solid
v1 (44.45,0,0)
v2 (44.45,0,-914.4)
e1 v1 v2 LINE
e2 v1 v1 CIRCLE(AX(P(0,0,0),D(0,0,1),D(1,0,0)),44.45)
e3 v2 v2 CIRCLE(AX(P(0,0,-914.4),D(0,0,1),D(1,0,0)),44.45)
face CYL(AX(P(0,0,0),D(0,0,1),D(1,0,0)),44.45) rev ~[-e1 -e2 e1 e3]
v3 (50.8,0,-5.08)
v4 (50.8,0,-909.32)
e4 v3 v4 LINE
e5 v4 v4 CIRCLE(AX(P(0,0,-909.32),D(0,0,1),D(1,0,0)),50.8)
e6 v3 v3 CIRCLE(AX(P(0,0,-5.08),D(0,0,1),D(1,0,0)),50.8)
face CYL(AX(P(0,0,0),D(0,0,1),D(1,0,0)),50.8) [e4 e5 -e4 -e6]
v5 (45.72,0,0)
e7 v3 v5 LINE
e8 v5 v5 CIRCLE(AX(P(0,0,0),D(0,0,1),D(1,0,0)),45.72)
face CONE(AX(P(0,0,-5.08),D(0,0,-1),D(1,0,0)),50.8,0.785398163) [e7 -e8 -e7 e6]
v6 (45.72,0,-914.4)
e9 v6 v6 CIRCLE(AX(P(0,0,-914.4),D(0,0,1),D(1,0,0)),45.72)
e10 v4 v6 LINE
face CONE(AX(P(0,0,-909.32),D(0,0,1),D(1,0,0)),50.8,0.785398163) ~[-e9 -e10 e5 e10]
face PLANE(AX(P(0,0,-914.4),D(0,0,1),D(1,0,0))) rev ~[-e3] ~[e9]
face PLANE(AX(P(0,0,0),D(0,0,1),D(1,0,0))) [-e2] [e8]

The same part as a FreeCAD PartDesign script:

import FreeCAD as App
import Part
import Sketcher
Q = App.Units.Quantity


def edges_at(feature, points):
    """Names of the edges that pass closest to the given points."""
    edges = feature.Shape.Edges
    near = lambda p: min(range(len(edges)), key=lambda i: edges[i].distToShape(Part.Vertex(*p))[0])
    return sorted({f"Edge{near(p) + 1}" for p in points})

doc = App.newDocument("Part")
params = doc.addObject("Spreadsheet::Sheet", "Params")
for row, (alias, value) in enumerate([
    ("sketch1_diameter", "4 in"),
    ("sketch1_diameter2", "3.5 in"),
    ("pad1_length", "36 in"),
    ("chamfer_size", "0.2 in"),
    ("chamfer2_size", "0.2 in"),
], start=1):
    params.set(f"A{row}", alias)
    params.set(f"B{row}", "=" + value)
    params.setAlias(f"B{row}", alias)

body = doc.addObject("PartDesign::Body", "Body")

sketch1 = body.newObject("Sketcher::SketchObject", "Sketch")
sketch1.AttachmentSupport = (doc.getObject("XY_Plane"), [""])
sketch1.MapMode = "FlatFace"
sketch1.addGeometry([
    Part.Circle(App.Vector(0, 0, 0), App.Vector(0, 0, 1), 50.8),
    Part.Circle(App.Vector(0, 0, 0), App.Vector(0, 0, 1), 44.45),
], False)
sketch1.addConstraint([
    Sketcher.Constraint("Coincident", 0, 3, -1, 1),
    Sketcher.Constraint("Coincident", 1, 3, -1, 1),
    Sketcher.Constraint("Diameter", 0, Q("4 in")),
    Sketcher.Constraint("Diameter", 1, Q("3.5 in")),
])
sketch1.setExpression("Constraints[2]", "Params.sketch1_diameter")
sketch1.setExpression("Constraints[3]", "Params.sketch1_diameter2")
pad1 = body.newObject("PartDesign::Pad", "Pad")
pad1.Profile = sketch1
pad1.setExpression("Length", "Params.pad1_length")
pad1.Reversed = True
doc.recompute()

chamfer = body.newObject("PartDesign::Chamfer", "Chamfer")
chamfer.Base = (pad1, edges_at(pad1, [(-50.8, 0, 0)]))
chamfer.setExpression("Size", "Params.chamfer_size")
doc.recompute()

chamfer2 = body.newObject("PartDesign::Chamfer", "Chamfer001")
chamfer2.Base = (chamfer, edges_at(chamfer, [(-50.8, 0, -914.4)]))
chamfer2.setExpression("Size", "Params.chamfer2_size")

doc.recompute()
